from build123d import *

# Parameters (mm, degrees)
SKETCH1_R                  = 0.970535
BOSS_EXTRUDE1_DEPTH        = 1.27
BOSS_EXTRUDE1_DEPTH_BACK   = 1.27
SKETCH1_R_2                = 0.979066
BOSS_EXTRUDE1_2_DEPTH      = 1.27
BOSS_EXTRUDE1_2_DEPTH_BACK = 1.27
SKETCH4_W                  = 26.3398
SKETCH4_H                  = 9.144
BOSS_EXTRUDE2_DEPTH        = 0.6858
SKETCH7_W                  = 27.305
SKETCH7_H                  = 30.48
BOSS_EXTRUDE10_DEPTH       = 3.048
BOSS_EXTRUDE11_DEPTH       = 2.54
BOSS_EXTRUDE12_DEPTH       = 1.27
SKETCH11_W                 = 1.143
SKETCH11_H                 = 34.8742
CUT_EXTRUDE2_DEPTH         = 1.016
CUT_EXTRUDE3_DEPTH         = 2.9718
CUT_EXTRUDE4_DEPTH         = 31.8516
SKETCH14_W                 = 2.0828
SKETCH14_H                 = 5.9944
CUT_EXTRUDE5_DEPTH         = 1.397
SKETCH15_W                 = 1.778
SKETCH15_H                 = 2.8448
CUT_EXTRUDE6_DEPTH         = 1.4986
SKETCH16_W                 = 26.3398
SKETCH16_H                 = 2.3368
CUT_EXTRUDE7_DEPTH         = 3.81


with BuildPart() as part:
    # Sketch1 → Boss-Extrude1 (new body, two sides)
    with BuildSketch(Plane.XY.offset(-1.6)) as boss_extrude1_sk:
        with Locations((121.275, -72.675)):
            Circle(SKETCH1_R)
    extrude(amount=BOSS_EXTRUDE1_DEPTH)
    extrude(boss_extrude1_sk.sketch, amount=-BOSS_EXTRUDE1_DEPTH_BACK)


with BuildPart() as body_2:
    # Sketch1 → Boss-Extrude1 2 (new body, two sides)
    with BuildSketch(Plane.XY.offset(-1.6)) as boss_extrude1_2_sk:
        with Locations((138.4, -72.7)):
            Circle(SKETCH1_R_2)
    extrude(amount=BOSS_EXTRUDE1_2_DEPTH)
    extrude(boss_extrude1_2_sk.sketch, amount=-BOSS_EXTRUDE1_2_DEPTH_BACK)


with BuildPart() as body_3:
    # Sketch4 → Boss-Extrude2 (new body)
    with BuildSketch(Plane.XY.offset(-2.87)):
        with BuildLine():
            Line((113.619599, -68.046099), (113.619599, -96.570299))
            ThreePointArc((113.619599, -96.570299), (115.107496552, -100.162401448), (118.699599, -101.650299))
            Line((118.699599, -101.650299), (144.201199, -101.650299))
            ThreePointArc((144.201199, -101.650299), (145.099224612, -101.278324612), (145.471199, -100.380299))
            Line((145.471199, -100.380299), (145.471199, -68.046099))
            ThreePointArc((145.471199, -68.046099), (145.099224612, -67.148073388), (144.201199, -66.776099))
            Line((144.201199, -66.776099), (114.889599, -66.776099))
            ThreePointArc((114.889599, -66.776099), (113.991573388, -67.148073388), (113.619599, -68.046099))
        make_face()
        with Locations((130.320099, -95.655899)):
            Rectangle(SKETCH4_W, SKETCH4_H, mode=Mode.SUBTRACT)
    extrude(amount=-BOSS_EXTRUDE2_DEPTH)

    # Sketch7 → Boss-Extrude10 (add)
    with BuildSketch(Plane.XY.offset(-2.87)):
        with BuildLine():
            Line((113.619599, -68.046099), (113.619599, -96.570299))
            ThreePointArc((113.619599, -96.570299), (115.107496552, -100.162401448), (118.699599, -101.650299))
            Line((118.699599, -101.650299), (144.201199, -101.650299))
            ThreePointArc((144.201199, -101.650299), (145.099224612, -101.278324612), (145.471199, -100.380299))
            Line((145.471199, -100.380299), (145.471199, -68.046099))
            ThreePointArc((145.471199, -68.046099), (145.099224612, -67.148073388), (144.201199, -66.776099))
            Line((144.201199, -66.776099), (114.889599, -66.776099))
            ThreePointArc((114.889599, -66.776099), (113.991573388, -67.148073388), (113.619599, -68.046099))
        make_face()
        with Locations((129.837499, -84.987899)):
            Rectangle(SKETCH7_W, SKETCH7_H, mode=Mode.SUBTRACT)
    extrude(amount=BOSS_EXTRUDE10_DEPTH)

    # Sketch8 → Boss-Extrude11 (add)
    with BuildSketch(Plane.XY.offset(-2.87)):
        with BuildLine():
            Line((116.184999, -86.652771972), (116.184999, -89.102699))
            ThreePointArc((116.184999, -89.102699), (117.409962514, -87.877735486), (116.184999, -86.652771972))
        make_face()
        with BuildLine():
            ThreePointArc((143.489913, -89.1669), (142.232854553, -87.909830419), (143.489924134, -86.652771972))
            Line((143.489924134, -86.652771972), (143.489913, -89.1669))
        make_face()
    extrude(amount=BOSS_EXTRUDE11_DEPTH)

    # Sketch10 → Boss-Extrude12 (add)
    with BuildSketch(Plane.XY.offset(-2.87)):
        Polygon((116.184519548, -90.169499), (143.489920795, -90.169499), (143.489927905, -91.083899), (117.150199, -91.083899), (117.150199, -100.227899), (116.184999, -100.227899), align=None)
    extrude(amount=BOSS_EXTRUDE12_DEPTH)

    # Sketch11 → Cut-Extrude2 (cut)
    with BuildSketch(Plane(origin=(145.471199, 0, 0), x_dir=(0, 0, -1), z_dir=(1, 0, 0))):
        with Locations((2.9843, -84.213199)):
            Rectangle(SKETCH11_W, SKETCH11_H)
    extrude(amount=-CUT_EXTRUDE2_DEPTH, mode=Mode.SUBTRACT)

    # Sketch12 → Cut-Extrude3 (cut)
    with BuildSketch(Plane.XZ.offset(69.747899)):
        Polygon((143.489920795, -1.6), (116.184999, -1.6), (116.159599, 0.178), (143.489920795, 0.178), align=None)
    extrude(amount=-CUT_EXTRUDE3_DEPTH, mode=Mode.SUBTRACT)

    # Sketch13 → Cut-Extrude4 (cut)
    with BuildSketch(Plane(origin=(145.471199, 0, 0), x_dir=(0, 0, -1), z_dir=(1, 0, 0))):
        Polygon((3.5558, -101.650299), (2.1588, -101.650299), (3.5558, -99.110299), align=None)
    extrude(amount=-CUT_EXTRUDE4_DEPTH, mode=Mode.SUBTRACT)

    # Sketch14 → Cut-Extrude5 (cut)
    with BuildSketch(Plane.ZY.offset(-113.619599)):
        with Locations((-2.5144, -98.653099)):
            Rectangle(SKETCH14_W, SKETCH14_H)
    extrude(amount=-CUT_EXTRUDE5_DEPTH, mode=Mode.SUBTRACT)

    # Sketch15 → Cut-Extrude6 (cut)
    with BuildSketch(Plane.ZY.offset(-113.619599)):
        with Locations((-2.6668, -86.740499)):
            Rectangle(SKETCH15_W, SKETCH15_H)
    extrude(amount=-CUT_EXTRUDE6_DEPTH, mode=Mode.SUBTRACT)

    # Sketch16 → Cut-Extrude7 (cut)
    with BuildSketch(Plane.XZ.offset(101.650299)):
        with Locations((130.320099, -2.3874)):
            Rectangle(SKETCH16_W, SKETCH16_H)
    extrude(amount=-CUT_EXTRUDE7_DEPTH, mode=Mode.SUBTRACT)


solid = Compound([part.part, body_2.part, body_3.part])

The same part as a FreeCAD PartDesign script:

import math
import FreeCAD as App
import Part
import Sketcher

V = App.Vector
Q = App.Units.Quantity

doc = App.newDocument("Part")
body = doc.addObject("PartDesign::Body", "Body")

# Sketch on XY plane
sketch1 = body.newObject("Sketcher::SketchObject", "Sketch")
sketch1.AttachmentSupport = (doc.getObject("XY_Plane"), [""])
sketch1.MapMode = "FlatFace"
sketch1.AttachmentOffset = App.Placement(V(0, 0, -1.6), App.Rotation())
sketch1.addGeometry(Part.Circle(V(121.3, -72.7, 0), V(0, 0, 1), 1), False)
sketch1.addConstraint([
    Sketcher.Constraint("Diameter", 0, Q("1.94107 mm")),
    Sketcher.Constraint("DistanceX", -1, 1, 0, 3, Q("121.275 mm")),
    Sketcher.Constraint("DistanceY", 0, 3, -1, 1, Q("72.675 mm")),
])
pad1 = body.newObject("PartDesign::Pad", "Pad")
pad1.Profile = sketch1
pad1.Type = "TwoLengths"
pad1.Length = Q("0.05 in")
pad1.Length2 = Q("0.05 in")
body2 = doc.addObject("PartDesign::Body", "Body001")

# Sketch on XY plane
sketch2 = body2.newObject("Sketcher::SketchObject", "Sketch001")
sketch2.AttachmentSupport = (doc.getObject("XY_Plane001"), [""])
sketch2.MapMode = "FlatFace"
sketch2.AttachmentOffset = App.Placement(V(0, 0, -1.6), App.Rotation())
sketch2.addGeometry(Part.Circle(V(138.4, -72.7, 0), V(0, 0, 1), 1), False)
sketch2.addConstraint([
    Sketcher.Constraint("Diameter", 0, Q("1.958132 mm")),
    Sketcher.Constraint("DistanceX", -1, 1, 0, 3, Q("138.4 mm")),
    Sketcher.Constraint("DistanceY", 0, 3, -1, 1, Q("72.7 mm")),
])
pad2 = body2.newObject("PartDesign::Pad", "Pad001")
pad2.Profile = sketch2
pad2.Type = "TwoLengths"
pad2.Length = Q("0.05 in")
pad2.Length2 = Q("0.05 in")
body3 = doc.addObject("PartDesign::Body", "Body002")

# Sketch on XY plane
sketch3 = body3.newObject("Sketcher::SketchObject", "Sketch002")
sketch3.AttachmentSupport = (doc.getObject("XY_Plane002"), [""])
sketch3.MapMode = "FlatFace"
sketch3.AttachmentOffset = App.Placement(V(0, 0, -2.87), App.Rotation())
sketch3.addGeometry([
    Part.LineSegment(V(113.6, -68, 0), V(113.6, -96.6, 0)),  # 0
    Part.ArcOfCircle(Part.Circle(V(118.7, -96.6, 0), V(0, 0, 1), 5.1), math.radians(-180), math.radians(-90)),  # 1
    Part.LineSegment(V(118.7, -101.7, 0), V(144.2, -101.7, 0)),  # 2
    Part.ArcOfCircle(Part.Circle(V(144.2, -100.4, 0), V(0, 0, 1), 1.3), math.radians(-90), math.radians(0)),  # 3
    Part.LineSegment(V(145.5, -100.4, 0), V(145.5, -68, 0)),  # 4
    Part.ArcOfCircle(Part.Circle(V(144.2, -68, 0), V(0, 0, 1), 1.3), math.radians(0), math.radians(90)),  # 5
    Part.LineSegment(V(144.2, -66.8, 0), V(114.9, -66.8, 0)),  # 6
    Part.ArcOfCircle(Part.Circle(V(114.9, -68, 0), V(0, 0, 1), 1.3), math.radians(90), math.radians(180)),  # 7
    Part.LineSegment(V(143.5, -100.2, 0), V(117.2, -100.2, 0)),  # 8
    Part.LineSegment(V(117.2, -100.2, 0), V(117.2, -91.1, 0)),  # 9
    Part.LineSegment(V(117.2, -91.1, 0), V(143.5, -91.1, 0)),  # 10
    Part.LineSegment(V(143.5, -91.1, 0), V(143.5, -100.2, 0)),  # 11
], False)
sketch3.addConstraint([
    Sketcher.Constraint("Tangent", 0, 2, 1, 1),
    Sketcher.Constraint("Tangent", 1, 2, 2, 1),
    Sketcher.Constraint("Tangent", 2, 2, 3, 1),
    Sketcher.Constraint("Tangent", 3, 2, 4, 1),
    Sketcher.Constraint("Tangent", 4, 2, 5, 1),
    Sketcher.Constraint("Tangent", 5, 2, 6, 1),
    Sketcher.Constraint("Tangent", 6, 2, 7, 1),
    Sketcher.Constraint("Tangent", 7, 2, 0, 1),
    Sketcher.Constraint("Coincident", 8, 2, 9, 1),
    Sketcher.Constraint("Coincident", 9, 2, 10, 1),
    Sketcher.Constraint("Coincident", 10, 2, 11, 1),
    Sketcher.Constraint("Coincident", 11, 2, 8, 1),
    Sketcher.Constraint("Vertical", 0),
    Sketcher.Constraint("Horizontal", 2),
    Sketcher.Constraint("Vertical", 4),
    Sketcher.Constraint("Horizontal", 6),
    Sketcher.Constraint("Horizontal", 8),
    Sketcher.Constraint("Vertical", 9),
    Sketcher.Constraint("Horizontal", 10),
    Sketcher.Constraint("Vertical", 11),
    Sketcher.Constraint("Equal", 3, 5),
    Sketcher.Constraint("Equal", 5, 7),
    Sketcher.Constraint("Radius", 1, Q("0.2 in")),
    Sketcher.Constraint("Radius", 3, Q("0.05 in")),
    Sketcher.Constraint("DistanceY", 9, 1, 9, 2, Q("0.36 in")),
    Sketcher.Constraint("DistanceX", 2, 1, 2, 2, Q("1.004 in")),
    Sketcher.Constraint("DistanceX", 8, 2, 8, 1, Q("1.037 in")),
    Sketcher.Constraint("DistanceY", 0, 2, 0, 1, Q("1.123 in")),
    Sketcher.Constraint("DistanceX", 8, 2, 1, 2, Q("0.061 in")),
    Sketcher.Constraint("DistanceY", 1, 2, 8, 2, Q("0.056 in")),
    Sketcher.Constraint("DistanceX", -1, 1, 1, 3, Q("118.699599 mm")),
    Sketcher.Constraint("DistanceY", 1, 3, -1, 1, Q("96.570299 mm")),
])
pad3 = body3.newObject("PartDesign::Pad", "Pad002")
pad3.Profile = sketch3
pad3.Length = Q("0.027 in")
pad3.Reversed = True

# Sketch on XY plane
sketch4 = body3.newObject("Sketcher::SketchObject", "Sketch003")
sketch4.AttachmentSupport = (doc.getObject("XY_Plane002"), [""])
sketch4.MapMode = "FlatFace"
sketch4.AttachmentOffset = App.Placement(V(0, 0, -2.87), App.Rotation())
sketch4.addGeometry([
    Part.LineSegment(V(113.6, -68, 0), V(113.6, -96.6, 0)),  # 0
    Part.ArcOfCircle(Part.Circle(V(118.7, -96.6, 0), V(0, 0, 1), 5.1), math.radians(-180), math.radians(-90)),  # 1
    Part.LineSegment(V(118.7, -101.7, 0), V(144.2, -101.7, 0)),  # 2
    Part.ArcOfCircle(Part.Circle(V(144.2, -100.4, 0), V(0, 0, 1), 1.3), math.radians(-90), math.radians(0)),  # 3
    Part.LineSegment(V(145.5, -100.4, 0), V(145.5, -68, 0)),  # 4
    Part.ArcOfCircle(Part.Circle(V(144.2, -68, 0), V(0, 0, 1), 1.3), math.radians(0), math.radians(90)),  # 5
    Part.LineSegment(V(144.2, -66.8, 0), V(114.9, -66.8, 0)),  # 6
    Part.ArcOfCircle(Part.Circle(V(114.9, -68, 0), V(0, 0, 1), 1.3), math.radians(90), math.radians(180)),  # 7
    Part.LineSegment(V(143.5, -100.2, 0), V(116.2, -100.2, 0)),  # 8
    Part.LineSegment(V(116.2, -100.2, 0), V(116.2, -69.7, 0)),  # 9
    Part.LineSegment(V(116.2, -69.7, 0), V(143.5, -69.7, 0)),  # 10
    Part.LineSegment(V(143.5, -69.7, 0), V(143.5, -100.2, 0)),  # 11
], False)
sketch4.addConstraint([
    Sketcher.Constraint("Tangent", 0, 2, 1, 1),
    Sketcher.Constraint("Tangent", 1, 2, 2, 1),
    Sketcher.Constraint("Tangent", 2, 2, 3, 1),
    Sketcher.Constraint("Tangent", 3, 2, 4, 1),
    Sketcher.Constraint("Tangent", 4, 2, 5, 1),
    Sketcher.Constraint("Tangent", 5, 2, 6, 1),
    Sketcher.Constraint("Tangent", 6, 2, 7, 1),
    Sketcher.Constraint("Tangent", 7, 2, 0, 1),
    Sketcher.Constraint("Coincident", 8, 2, 9, 1),
    Sketcher.Constraint("Coincident", 9, 2, 10, 1),
    Sketcher.Constraint("Coincident", 10, 2, 11, 1),
    Sketcher.Constraint("Coincident", 11, 2, 8, 1),
    Sketcher.Constraint("Vertical", 0),
    Sketcher.Constraint("Horizontal", 2),
    Sketcher.Constraint("Vertical", 4),
    Sketcher.Constraint("Horizontal", 6),
    Sketcher.Constraint("Horizontal", 8),
    Sketcher.Constraint("Vertical", 9),
    Sketcher.Constraint("Horizontal", 10),
    Sketcher.Constraint("Vertical", 11),
    Sketcher.Constraint("Equal", 3, 5),
    Sketcher.Constraint("Equal", 5, 7),
    Sketcher.Constraint("Radius", 1, Q("0.2 in")),
    Sketcher.Constraint("Radius", 3, Q("0.05 in")),
    Sketcher.Constraint("DistanceY", 9, 1, 9, 2, Q("1.2 in")),
    Sketcher.Constraint("DistanceX", 2, 1, 2, 2, Q("1.004 in")),
    Sketcher.Constraint("DistanceX", 8, 2, 8, 1, Q("1.075 in")),
    Sketcher.Constraint("DistanceY", 0, 2, 0, 1, Q("1.123 in")),
    Sketcher.Constraint("DistanceX", 8, 2, 1, 2, Q("0.099 in")),
    Sketcher.Constraint("DistanceY", 1, 2, 8, 2, Q("0.056 in")),
    Sketcher.Constraint("DistanceX", -1, 1, 1, 3, Q("118.699599 mm")),
    Sketcher.Constraint("DistanceY", 1, 3, -1, 1, Q("96.570299 mm")),
])
pad4 = body3.newObject("PartDesign::Pad", "Pad003")
pad4.Profile = sketch4
pad4.Length = Q("0.12 in")

# Sketch on XY plane
sketch5 = body3.newObject("Sketcher::SketchObject", "Sketch004")
sketch5.AttachmentSupport = (doc.getObject("XY_Plane002"), [""])
sketch5.MapMode = "FlatFace"
sketch5.AttachmentOffset = App.Placement(V(0, 0, -2.87), App.Rotation())
sketch5.addGeometry([
    Part.LineSegment(V(116.2, -86.7, 0), V(116.2, -89.1, 0)),
    Part.ArcOfCircle(Part.Circle(V(116.2, -87.9, 0), V(0, 0, 1), 1.2), math.radians(-90), math.radians(90)),
    Part.ArcOfCircle(Part.Circle(V(143.5, -87.9, 0), V(0, 0, 1), 1.3), math.radians(90), math.radians(270)),
    Part.LineSegment(V(143.5, -89.2, 0), V(143.5, -86.7, 0)),
], False)
sketch5.addConstraint([
    Sketcher.Constraint("Coincident", 0, 1, 1, 2),
    Sketcher.Constraint("Coincident", 1, 1, 0, 2),
    Sketcher.Constraint("Coincident", 2, 1, 3, 2),
    Sketcher.Constraint("Coincident", 3, 1, 2, 2),
    Sketcher.Constraint("Vertical", 0),
    Sketcher.Constraint("Horizontal", 0, 1, 2, 1),
    Sketcher.Constraint("Vertical", 1, 3, 0, 1),
    Sketcher.Constraint("Radius", 1, Q("1.224964 mm")),
    Sketcher.Constraint("Radius", 2, Q("1.257064 mm")),
    Sketcher.Constraint("DistanceX", -1, 1, 1, 3, Q("116.184999 mm")),
    Sketcher.Constraint("DistanceY", 1, 1, -1, 1, Q("89.102699 mm")),
    Sketcher.Constraint("DistanceX", -1, 1, 2, 3, Q("143.489919 mm")),
    Sketcher.Constraint("DistanceX", -1, 1, 2, 1, Q("143.489924 mm")),
    Sketcher.Constraint("DistanceX", -1, 1, 3, 1, Q("143.489913 mm")),
])
pad5 = body3.newObject("PartDesign::Pad", "Pad004")
pad5.Profile = sketch5
pad5.Length = Q("0.1 in")

# Sketch on XY plane
sketch6 = body3.newObject("Sketcher::SketchObject", "Sketch005")
sketch6.AttachmentSupport = (doc.getObject("XY_Plane002"), [""])
sketch6.MapMode = "FlatFace"
sketch6.AttachmentOffset = App.Placement(V(0, 0, -2.87), App.Rotation())
sketch6.addGeometry([
    Part.LineSegment(V(143.5, -90.2, 0), V(116.2, -90.2, 0)),  # 0
    Part.LineSegment(V(116.2, -90.2, 0), V(116.2, -100.2, 0)),  # 1
    Part.LineSegment(V(116.2, -100.2, 0), V(117.2, -100.2, 0)),  # 2
    Part.LineSegment(V(117.2, -100.2, 0), V(117.2, -91.1, 0)),  # 3
    Part.LineSegment(V(117.2, -91.1, 0), V(143.5, -91.1, 0)),  # 4
    Part.LineSegment(V(143.5, -91.1, 0), V(143.5, -90.2, 0)),  # 5
], False)
sketch6.addConstraint([
    Sketcher.Constraint("Coincident", 0, 2, 1, 1),
    Sketcher.Constraint("Coincident", 1, 2, 2, 1),
    Sketcher.Constraint("Coincident", 2, 2, 3, 1),
    Sketcher.Constraint("Coincident", 3, 2, 4, 1),
    Sketcher.Constraint("Coincident", 4, 2, 5, 1),
    Sketcher.Constraint("Coincident", 5, 2, 0, 1),
    Sketcher.Constraint("Horizontal", 0),
    Sketcher.Constraint("Horizontal", 2),
    Sketcher.Constraint("Vertical", 3),
    Sketcher.Constraint("Horizontal", 4),
    Sketcher.Constraint("DistanceY", 3, 1, 3, 2, Q("0.36 in")),
    Sketcher.Constraint("DistanceX", 2, 1, 2, 2, Q("0.038 in")),
    Sketcher.Constraint("Distance", 1, Q("0.396 in")),
    Sketcher.Constraint("DistanceX", 0, 2, 0, 1, Q("27.305401 mm")),
    Sketcher.Constraint("DistanceX", 4, 1, 4, 2, Q("26.339729 mm")),
    Sketcher.Constraint("DistanceY", 0, 2, -1, 1, Q("90.169499 mm")),
    Sketcher.Constraint("DistanceX", -1, 1, 1, 2, Q("116.184999 mm")),
    Sketcher.Constraint("DistanceX", -1, 1, 0, 2, Q("116.18452 mm")),
])
pad6 = body3.newObject("PartDesign::Pad", "Pad005")
pad6.Profile = sketch6
pad6.Length = Q("0.05 in")

# Sketch on YZ plane
sketch7 = body3.newObject("Sketcher::SketchObject", "Sketch006")
sketch7.AttachmentSupport = (doc.getObject("YZ_Plane002"), [""])
sketch7.MapMode = "FlatFace"
sketch7.AttachmentOffset = App.Placement(V(0, 0, 145.471199), App.Rotation())
sketch7.addGeometry([
    Part.LineSegment(V(-66.8, -2.4, 0), V(-101.7, -2.4, 0)),
    Part.LineSegment(V(-101.7, -2.4, 0), V(-101.7, -3.6, 0)),
    Part.LineSegment(V(-101.7, -3.6, 0), V(-66.8, -3.6, 0)),
    Part.LineSegment(V(-66.8, -3.6, 0), V(-66.8, -2.4, 0)),
], False)
sketch7.addConstraint([
    Sketcher.Constraint("Coincident", 0, 2, 1, 1),
    Sketcher.Constraint("Coincident", 1, 2, 2, 1),
    Sketcher.Constraint("Coincident", 2, 2, 3, 1),
    Sketcher.Constraint("Coincident", 3, 2, 0, 1),
    Sketcher.Constraint("Horizontal", 0),
    Sketcher.Constraint("Vertical", 1),
    Sketcher.Constraint("Horizontal", 2),
    Sketcher.Constraint("Vertical", 3),
    Sketcher.Constraint("DistanceX", 0, 2, 0, 1, Q("1.373 in")),
    Sketcher.Constraint("DistanceY", 1, 2, 1, 1, Q("0.045 in")),
    Sketcher.Constraint("DistanceX", 0, 2, -1, 1, Q("101.650299 mm")),
    Sketcher.Constraint("DistanceY", 0, 2, -1, 1, Q("2.4128 mm")),
])
pocket1 = body3.newObject("PartDesign::Pocket", "Pocket")
pocket1.Profile = sketch7
pocket1.Length = Q("0.04 in")

# Sketch on XZ plane
sketch8 = body3.newObject("Sketcher::SketchObject", "Sketch007")
sketch8.AttachmentSupport = (doc.getObject("XZ_Plane002"), [""])
sketch8.MapMode = "FlatFace"
sketch8.AttachmentOffset = App.Placement(V(0, 0, 69.747899), App.Rotation())
sketch8.addGeometry([
    Part.LineSegment(V(116.2, -1.6, 0), V(143.5, -1.6, 0)),
    Part.LineSegment(V(143.5, -1.6, 0), V(143.5, 0.2, 0)),
    Part.LineSegment(V(143.5, 0.2, 0), V(116.2, 0.2, 0)),
    Part.LineSegment(V(116.2, 0.2, 0), V(116.2, -1.6, 0)),
], False)
sketch8.addConstraint([
    Sketcher.Constraint("Coincident", 0, 2, 1, 1),
    Sketcher.Constraint("Coincident", 1, 2, 2, 1),
    Sketcher.Constraint("Coincident", 2, 2, 3, 1),
    Sketcher.Constraint("Coincident", 3, 2, 0, 1),
    Sketcher.Constraint("Horizontal", 0),
    Sketcher.Constraint("Vertical", 1),
    Sketcher.Constraint("Horizontal", 2),
    Sketcher.Constraint("DistanceY", 1, 1, 1, 2, Q("0.07 in")),
    Sketcher.Constraint("DistanceX", 2, 2, 3, 2, Q("0.001 in")),
    Sketcher.Constraint("DistanceX", 0, 1, 0, 2, Q("27.304922 mm")),
    Sketcher.Constraint("DistanceY", 0, 2, -1, 1, Q("1.6 mm")),
    Sketcher.Constraint("DistanceX", -1, 1, 2, 2, Q("116.159599 mm")),
])
pocket2 = body3.newObject("PartDesign::Pocket", "Pocket001")
pocket2.Profile = sketch8
pocket2.Length = Q("0.117 in")

# Sketch on YZ plane
sketch9 = body3.newObject("Sketcher::SketchObject", "Sketch008")
sketch9.AttachmentSupport = (doc.getObject("YZ_Plane002"), [""])
sketch9.MapMode = "FlatFace"
sketch9.AttachmentOffset = App.Placement(V(0, 0, 145.471199), App.Rotation())
sketch9.addGeometry([
    Part.LineSegment(V(-101.7, -2.2, 0), V(-101.7, -3.6, 0)),
    Part.LineSegment(V(-101.7, -3.6, 0), V(-99.1, -3.6, 0)),
    Part.LineSegment(V(-99.1, -3.6, 0), V(-101.7, -2.2, 0)),
], False)
sketch9.addConstraint([
    Sketcher.Constraint("Coincident", 0, 2, 1, 1),
    Sketcher.Constraint("Coincident", 1, 2, 2, 1),
    Sketcher.Constraint("Coincident", 2, 2, 0, 1),
    Sketcher.Constraint("Vertical", 0),
    Sketcher.Constraint("Horizontal", 1),
    Sketcher.Constraint("DistanceX", 1, 1, 1, 2, Q("0.1 in")),
    Sketcher.Constraint("DistanceY", 0, 2, 0, 1, Q("0.055 in")),
    Sketcher.Constraint("DistanceX", 0, 2, -1, 1, Q("101.650299 mm")),
    Sketcher.Constraint("DistanceY", 0, 2, -1, 1, Q("3.5558 mm")),
])
pocket3 = body3.newObject("PartDesign::Pocket", "Pocket002")
pocket3.Profile = sketch9
pocket3.Length = Q("1.254 in")

# Sketch on YZ plane
sketch10 = body3.newObject("Sketcher::SketchObject", "Sketch009")
sketch10.AttachmentSupport = (doc.getObject("YZ_Plane002"), [""])
sketch10.MapMode = "FlatFace"
sketch10.AttachmentOffset = App.Placement(V(0, 0, 113.619599), App.Rotation())
sketch10.addGeometry([
    Part.LineSegment(V(-95.7, -3.6, 0), V(-101.7, -3.6, 0)),
    Part.LineSegment(V(-101.7, -3.6, 0), V(-101.7, -1.5, 0)),
    Part.LineSegment(V(-101.7, -1.5, 0), V(-95.7, -1.5, 0)),
    Part.LineSegment(V(-95.7, -1.5, 0), V(-95.7, -3.6, 0)),
], False)
sketch10.addConstraint([
    Sketcher.Constraint("Coincident", 0, 2, 1, 1),
    Sketcher.Constraint("Coincident", 1, 2, 2, 1),
    Sketcher.Constraint("Coincident", 2, 2, 3, 1),
    Sketcher.Constraint("Coincident", 3, 2, 0, 1),
    Sketcher.Constraint("Horizontal", 0),
    Sketcher.Constraint("Vertical", 1),
    Sketcher.Constraint("Horizontal", 2),
    Sketcher.Constraint("Vertical", 3),
    Sketcher.Constraint("DistanceX", 0, 2, 0, 1, Q("0.236 in")),
    Sketcher.Constraint("DistanceY", 1, 1, 1, 2, Q("0.082 in")),
    Sketcher.Constraint("DistanceX", 0, 2, -1, 1, Q("101.650299 mm")),
    Sketcher.Constraint("DistanceY", 0, 2, -1, 1, Q("3.5558 mm")),
])
pocket4 = body3.newObject("PartDesign::Pocket", "Pocket003")
pocket4.Profile = sketch10
pocket4.Length = Q("0.055 in")
pocket4.Reversed = True

# Sketch on YZ plane
sketch11 = body3.newObject("Sketcher::SketchObject", "Sketch010")
sketch11.AttachmentSupport = (doc.getObject("YZ_Plane002"), [""])
sketch11.MapMode = "FlatFace"
sketch11.AttachmentOffset = App.Placement(V(0, 0, 113.619599), App.Rotation())
sketch11.addGeometry([
    Part.LineSegment(V(-85.3, -3.6, 0), V(-88.2, -3.6, 0)),
    Part.LineSegment(V(-88.2, -3.6, 0), V(-88.2, -1.8, 0)),
    Part.LineSegment(V(-88.2, -1.8, 0), V(-85.3, -1.8, 0)),
    Part.LineSegment(V(-85.3, -1.8, 0), V(-85.3, -3.6, 0)),
], False)
sketch11.addConstraint([
    Sketcher.Constraint("Coincident", 0, 2, 1, 1),
    Sketcher.Constraint("Coincident", 1, 2, 2, 1),
    Sketcher.Constraint("Coincident", 2, 2, 3, 1),
    Sketcher.Constraint("Coincident", 3, 2, 0, 1),
    Sketcher.Constraint("Horizontal", 0),
    Sketcher.Constraint("Vertical", 1),
    Sketcher.Constraint("Horizontal", 2),
    Sketcher.Constraint("Vertical", 3),
    Sketcher.Constraint("DistanceY", 1, 1, 1, 2, Q("0.07 in")),
    Sketcher.Constraint("DistanceX", 0, 2, 0, 1, Q("0.112 in")),
    Sketcher.Constraint("DistanceX", 0, 2, -1, 1, Q("88.162899 mm")),
    Sketcher.Constraint("DistanceY", 0, 2, -1, 1, Q("3.5558 mm")),
])
pocket5 = body3.newObject("PartDesign::Pocket", "Pocket004")
pocket5.Profile = sketch11
pocket5.Length = Q("0.059 in")
pocket5.Reversed = True

# Sketch on XZ plane
sketch12 = body3.newObject("Sketcher::SketchObject", "Sketch011")
sketch12.AttachmentSupport = (doc.getObject("XZ_Plane002"), [""])
sketch12.MapMode = "FlatFace"
sketch12.AttachmentOffset = App.Placement(V(0, 0, 101.650299), App.Rotation())
sketch12.addGeometry([
    Part.LineSegment(V(117.2, -1.2, 0), V(117.2, -3.6, 0)),
    Part.LineSegment(V(117.2, -3.6, 0), V(143.5, -3.6, 0)),
    Part.LineSegment(V(143.5, -3.6, 0), V(143.5, -1.2, 0)),
    Part.LineSegment(V(143.5, -1.2, 0), V(117.2, -1.2, 0)),
], False)
sketch12.addConstraint([
    Sketcher.Constraint("Coincident", 0, 2, 1, 1),
    Sketcher.Constraint("Coincident", 1, 2, 2, 1),
    Sketcher.Constraint("Coincident", 2, 2, 3, 1),
    Sketcher.Constraint("Coincident", 3, 2, 0, 1),
    Sketcher.Constraint("Vertical", 0),
    Sketcher.Constraint("Horizontal", 1),
    Sketcher.Constraint("Vertical", 2),
    Sketcher.Constraint("Horizontal", 3),
    Sketcher.Constraint("DistanceX", 1, 1, 1, 2, Q("1.037 in")),
    Sketcher.Constraint("DistanceY", 0, 2, 0, 1, Q("0.092 in")),
    Sketcher.Constraint("DistanceX", -1, 1, 0, 2, Q("117.150199 mm")),
    Sketcher.Constraint("DistanceY", 0, 2, -1, 1, Q("3.5558 mm")),
])
pocket6 = body3.newObject("PartDesign::Pocket", "Pocket005")
pocket6.Profile = sketch12
pocket6.Length = Q("0.15 in")

doc.recompute()
